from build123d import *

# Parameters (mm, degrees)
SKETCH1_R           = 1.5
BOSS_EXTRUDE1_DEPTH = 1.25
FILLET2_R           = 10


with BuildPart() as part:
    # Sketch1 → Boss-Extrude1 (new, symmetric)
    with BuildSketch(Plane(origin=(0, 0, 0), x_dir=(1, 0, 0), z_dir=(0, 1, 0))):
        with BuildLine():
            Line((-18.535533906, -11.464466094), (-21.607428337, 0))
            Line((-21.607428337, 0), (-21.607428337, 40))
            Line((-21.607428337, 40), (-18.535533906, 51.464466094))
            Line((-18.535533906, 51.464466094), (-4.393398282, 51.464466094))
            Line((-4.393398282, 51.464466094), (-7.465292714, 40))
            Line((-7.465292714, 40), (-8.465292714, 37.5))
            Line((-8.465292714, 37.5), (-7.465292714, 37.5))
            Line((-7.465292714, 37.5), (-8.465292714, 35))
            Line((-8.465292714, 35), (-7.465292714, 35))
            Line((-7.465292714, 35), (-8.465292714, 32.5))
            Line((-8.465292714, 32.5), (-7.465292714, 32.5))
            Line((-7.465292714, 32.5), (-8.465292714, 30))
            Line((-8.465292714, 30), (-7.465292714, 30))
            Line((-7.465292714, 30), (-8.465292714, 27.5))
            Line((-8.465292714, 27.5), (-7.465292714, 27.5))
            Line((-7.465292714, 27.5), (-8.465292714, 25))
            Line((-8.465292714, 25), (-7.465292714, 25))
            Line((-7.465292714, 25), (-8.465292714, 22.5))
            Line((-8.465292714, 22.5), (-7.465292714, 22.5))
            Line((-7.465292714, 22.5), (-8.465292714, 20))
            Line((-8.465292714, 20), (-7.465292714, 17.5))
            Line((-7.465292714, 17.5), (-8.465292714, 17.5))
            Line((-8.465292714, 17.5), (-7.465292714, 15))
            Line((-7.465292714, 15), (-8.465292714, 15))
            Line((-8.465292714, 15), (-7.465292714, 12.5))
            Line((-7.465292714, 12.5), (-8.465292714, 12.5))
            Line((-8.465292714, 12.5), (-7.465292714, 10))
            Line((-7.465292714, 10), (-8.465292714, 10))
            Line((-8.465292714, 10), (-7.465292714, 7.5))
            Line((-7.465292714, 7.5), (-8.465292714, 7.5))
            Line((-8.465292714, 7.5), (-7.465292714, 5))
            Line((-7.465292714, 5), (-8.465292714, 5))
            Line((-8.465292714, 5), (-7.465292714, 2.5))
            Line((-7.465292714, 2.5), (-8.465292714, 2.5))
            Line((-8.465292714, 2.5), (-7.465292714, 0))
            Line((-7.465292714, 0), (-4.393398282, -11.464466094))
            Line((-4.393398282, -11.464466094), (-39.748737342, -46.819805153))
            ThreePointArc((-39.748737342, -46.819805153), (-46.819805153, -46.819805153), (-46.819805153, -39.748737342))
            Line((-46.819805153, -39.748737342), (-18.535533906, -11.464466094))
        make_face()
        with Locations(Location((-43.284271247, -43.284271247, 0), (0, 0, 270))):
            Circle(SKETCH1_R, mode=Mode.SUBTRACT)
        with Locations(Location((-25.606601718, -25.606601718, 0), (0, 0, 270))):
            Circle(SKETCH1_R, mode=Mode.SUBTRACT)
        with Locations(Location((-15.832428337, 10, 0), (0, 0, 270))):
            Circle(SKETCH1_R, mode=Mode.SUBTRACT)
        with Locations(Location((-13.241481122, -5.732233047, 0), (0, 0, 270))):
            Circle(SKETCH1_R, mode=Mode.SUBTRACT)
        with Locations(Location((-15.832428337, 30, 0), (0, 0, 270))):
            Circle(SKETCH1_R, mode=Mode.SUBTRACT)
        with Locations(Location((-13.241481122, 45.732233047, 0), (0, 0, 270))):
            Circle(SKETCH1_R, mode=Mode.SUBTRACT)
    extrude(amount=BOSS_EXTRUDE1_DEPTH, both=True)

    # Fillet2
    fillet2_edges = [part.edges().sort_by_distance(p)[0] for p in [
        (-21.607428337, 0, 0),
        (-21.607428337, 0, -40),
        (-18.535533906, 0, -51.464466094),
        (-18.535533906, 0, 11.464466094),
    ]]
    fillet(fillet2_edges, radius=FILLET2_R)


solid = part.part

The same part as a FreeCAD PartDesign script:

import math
import FreeCAD as App
import Part
import Sketcher
Q = App.Units.Quantity


def edges_at(feature, points):
    """Names of the edges that pass closest to the given points."""
    edges = feature.Shape.Edges
    near = lambda p: min(range(len(edges)), key=lambda i: edges[i].distToShape(Part.Vertex(*p))[0])
    return sorted({f"Edge{near(p) + 1}" for p in points})

doc = App.newDocument("Part")
body = doc.addObject("PartDesign::Body", "Body")

sketch1 = body.newObject("Sketcher::SketchObject", "Sketch")
sketch1.AttachmentSupport = (doc.getObject("XZ_Plane"), [""])
sketch1.MapMode = "FlatFace"
sketch1.addGeometry(Part.LineSegment(App.Vector(-21.607428, 0, 0), App.Vector(-18.535534, 11.464466, 0)), False)
sketch1.addGeometry(Part.LineSegment(App.Vector(-18.535534, 11.464466, 0), App.Vector(-46.819805, 39.748737, 0)), False)
sketch1.addGeometry(Part.ArcOfCircle(Part.Circle(App.Vector(-43.284271, 43.284271, 0), App.Vector(0, 0, 1), 5), math.radians(45), math.radians(225)), False)
sketch1.addGeometry(Part.LineSegment(App.Vector(-39.748737, 46.819805, 0), App.Vector(-4.393398, 11.464466, 0)), False)
sketch1.addGeometry(Part.LineSegment(App.Vector(-4.393398, 11.464466, 0), App.Vector(-7.465293, 0, 0)), False)
sketch1.addGeometry(Part.LineSegment(App.Vector(-7.465293, 0, 0), App.Vector(-8.465293, -2.5, 0)), False)
sketch1.addGeometry(Part.LineSegment(App.Vector(-8.465293, -2.5, 0), App.Vector(-7.465293, -2.5, 0)), False)
sketch1.addGeometry(Part.LineSegment(App.Vector(-7.465293, -2.5, 0), App.Vector(-8.465293, -5, 0)), False)
sketch1.addGeometry(Part.LineSegment(App.Vector(-8.465293, -5, 0), App.Vector(-7.465293, -5, 0)), False)
sketch1.addGeometry(Part.LineSegment(App.Vector(-7.465293, -5, 0), App.Vector(-8.465293, -7.5, 0)), False)
sketch1.addGeometry(Part.LineSegment(App.Vector(-8.465293, -7.5, 0), App.Vector(-7.465293, -7.5, 0)), False)
sketch1.addGeometry(Part.LineSegment(App.Vector(-7.465293, -7.5, 0), App.Vector(-8.465293, -10, 0)), False)
sketch1.addGeometry(Part.LineSegment(App.Vector(-8.465293, -10, 0), App.Vector(-7.465293, -10, 0)), False)
sketch1.addGeometry(Part.LineSegment(App.Vector(-7.465293, -10, 0), App.Vector(-8.465293, -12.5, 0)), False)
sketch1.addGeometry(Part.LineSegment(App.Vector(-8.465293, -12.5, 0), App.Vector(-7.465293, -12.5, 0)), False)
sketch1.addGeometry(Part.LineSegment(App.Vector(-7.465293, -12.5, 0), App.Vector(-8.465293, -15, 0)), False)
sketch1.addGeometry(Part.LineSegment(App.Vector(-8.465293, -15, 0), App.Vector(-7.465293, -15, 0)), False)
sketch1.addGeometry(Part.LineSegment(App.Vector(-7.465293, -15, 0), App.Vector(-8.465293, -17.5, 0)), False)
sketch1.addGeometry(Part.LineSegment(App.Vector(-8.465293, -17.5, 0), App.Vector(-7.465293, -17.5, 0)), False)
sketch1.addGeometry(Part.LineSegment(App.Vector(-7.465293, -17.5, 0), App.Vector(-8.465293, -20, 0)), False)
sketch1.addGeometry(Part.LineSegment(App.Vector(-8.465293, -20, 0), App.Vector(-7.465293, -22.5, 0)), False)
sketch1.addGeometry(Part.LineSegment(App.Vector(-7.465293, -22.5, 0), App.Vector(-8.465293, -22.5, 0)), False)
sketch1.addGeometry(Part.LineSegment(App.Vector(-8.465293, -22.5, 0), App.Vector(-7.465293, -25, 0)), False)
sketch1.addGeometry(Part.LineSegment(App.Vector(-7.465293, -25, 0), App.Vector(-8.465293, -25, 0)), False)
sketch1.addGeometry(Part.LineSegment(App.Vector(-8.465293, -25, 0), App.Vector(-7.465293, -27.5, 0)), False)
sketch1.addGeometry(Part.LineSegment(App.Vector(-7.465293, -27.5, 0), App.Vector(-8.465293, -27.5, 0)), False)
sketch1.addGeometry(Part.LineSegment(App.Vector(-8.465293, -27.5, 0), App.Vector(-7.465293, -30, 0)), False)
sketch1.addGeometry(Part.LineSegment(App.Vector(-7.465293, -30, 0), App.Vector(-8.465293, -30, 0)), False)
sketch1.addGeometry(Part.LineSegment(App.Vector(-8.465293, -30, 0), App.Vector(-7.465293, -32.5, 0)), False)
sketch1.addGeometry(Part.LineSegment(App.Vector(-7.465293, -32.5, 0), App.Vector(-8.465293, -32.5, 0)), False)
sketch1.addGeometry(Part.LineSegment(App.Vector(-8.465293, -32.5, 0), App.Vector(-7.465293, -35, 0)), False)
sketch1.addGeometry(Part.LineSegment(App.Vector(-7.465293, -35, 0), App.Vector(-8.465293, -35, 0)), False)
sketch1.addGeometry(Part.LineSegment(App.Vector(-8.465293, -35, 0), App.Vector(-7.465293, -37.5, 0)), False)
sketch1.addGeometry(Part.LineSegment(App.Vector(-7.465293, -37.5, 0), App.Vector(-8.465293, -37.5, 0)), False)
sketch1.addGeometry(Part.LineSegment(App.Vector(-8.465293, -37.5, 0), App.Vector(-7.465293, -40, 0)), False)
sketch1.addGeometry(Part.LineSegment(App.Vector(-7.465293, -40, 0), App.Vector(-4.393398, -51.464466, 0)), False)
sketch1.addGeometry(Part.LineSegment(App.Vector(-4.393398, -51.464466, 0), App.Vector(-18.535534, -51.464466, 0)), False)
sketch1.addGeometry(Part.LineSegment(App.Vector(-18.535534, -51.464466, 0), App.Vector(-21.607428, -40, 0)), False)
sketch1.addGeometry(Part.LineSegment(App.Vector(-21.607428, -40, 0), App.Vector(-21.607428, 0, 0)), False)
sketch1.addGeometry(Part.Circle(App.Vector(-25.606602, 25.606602, 0), App.Vector(0, 0, 1), 1.5), False)
sketch1.addGeometry(Part.Circle(App.Vector(-13.241481, 5.732233, 0), App.Vector(0, 0, 1), 1.5), False)
sketch1.addGeometry(Part.Circle(App.Vector(-43.284271, 43.284271, 0), App.Vector(0, 0, 1), 1.5), False)
sketch1.addGeometry(Part.Circle(App.Vector(-15.832428, -10, 0), App.Vector(0, 0, 1), 1.5), False)
sketch1.addGeometry(Part.Circle(App.Vector(-15.832428, -30, 0), App.Vector(0, 0, 1), 1.5), False)
sketch1.addGeometry(Part.Circle(App.Vector(-13.241481, -45.732233, 0), App.Vector(0, 0, 1), 1.5), False)
sketch1.addConstraint(Sketcher.Constraint("Coincident", 0, 2, 1, 1))
sketch1.addConstraint(Sketcher.Constraint("Tangent", 1, 2, 2, 2))
sketch1.addConstraint(Sketcher.Constraint("Tangent", 2, 1, 3, 1))
sketch1.addConstraint(Sketcher.Constraint("Coincident", 3, 2, 4, 1))
sketch1.addConstraint(Sketcher.Constraint("Coincident", 4, 2, 5, 1))
sketch1.addConstraint(Sketcher.Constraint("Coincident", 5, 2, 6, 1))
sketch1.addConstraint(Sketcher.Constraint("Coincident", 6, 2, 7, 1))
sketch1.addConstraint(Sketcher.Constraint("Coincident", 7, 2, 8, 1))
sketch1.addConstraint(Sketcher.Constraint("Coincident", 8, 2, 9, 1))
sketch1.addConstraint(Sketcher.Constraint("Coincident", 9, 2, 10, 1))
sketch1.addConstraint(Sketcher.Constraint("Coincident", 10, 2, 11, 1))
sketch1.addConstraint(Sketcher.Constraint("Coincident", 11, 2, 12, 1))
sketch1.addConstraint(Sketcher.Constraint("Coincident", 12, 2, 13, 1))
sketch1.addConstraint(Sketcher.Constraint("Coincident", 13, 2, 14, 1))
sketch1.addConstraint(Sketcher.Constraint("Coincident", 14, 2, 15, 1))
sketch1.addConstraint(Sketcher.Constraint("Coincident", 15, 2, 16, 1))
sketch1.addConstraint(Sketcher.Constraint("Coincident", 16, 2, 17, 1))
sketch1.addConstraint(Sketcher.Constraint("Coincident", 17, 2, 18, 1))
sketch1.addConstraint(Sketcher.Constraint("Coincident", 18, 2, 19, 1))
sketch1.addConstraint(Sketcher.Constraint("Coincident", 19, 2, 20, 1))
sketch1.addConstraint(Sketcher.Constraint("Coincident", 20, 2, 21, 1))
sketch1.addConstraint(Sketcher.Constraint("Coincident", 21, 2, 22, 1))
sketch1.addConstraint(Sketcher.Constraint("Coincident", 22, 2, 23, 1))
sketch1.addConstraint(Sketcher.Constraint("Coincident", 23, 2, 24, 1))
sketch1.addConstraint(Sketcher.Constraint("Coincident", 24, 2, 25, 1))
sketch1.addConstraint(Sketcher.Constraint("Coincident", 25, 2, 26, 1))
sketch1.addConstraint(Sketcher.Constraint("Coincident", 26, 2, 27, 1))
sketch1.addConstraint(Sketcher.Constraint("Coincident", 27, 2, 28, 1))
sketch1.addConstraint(Sketcher.Constraint("Coincident", 28, 2, 29, 1))
sketch1.addConstraint(Sketcher.Constraint("Coincident", 29, 2, 30, 1))
sketch1.addConstraint(Sketcher.Constraint("Coincident", 30, 2, 31, 1))
sketch1.addConstraint(Sketcher.Constraint("Coincident", 31, 2, 32, 1))
sketch1.addConstraint(Sketcher.Constraint("Coincident", 32, 2, 33, 1))
sketch1.addConstraint(Sketcher.Constraint("Coincident", 33, 2, 34, 1))
sketch1.addConstraint(Sketcher.Constraint("Coincident", 34, 2, 35, 1))
sketch1.addConstraint(Sketcher.Constraint("Coincident", 35, 2, 36, 1))
sketch1.addConstraint(Sketcher.Constraint("Coincident", 36, 2, 37, 1))
sketch1.addConstraint(Sketcher.Constraint("Coincident", 37, 2, 38, 1))
sketch1.addConstraint(Sketcher.Constraint("Coincident", 38, 2, 0, 1))
sketch1.addConstraint(Sketcher.Constraint("Horizontal", 6))
sketch1.addConstraint(Sketcher.Constraint("Horizontal", 8))
sketch1.addConstraint(Sketcher.Constraint("Horizontal", 10))
sketch1.addConstraint(Sketcher.Constraint("Horizontal", 12))
sketch1.addConstraint(Sketcher.Constraint("Horizontal", 14))
sketch1.addConstraint(Sketcher.Constraint("Horizontal", 16))
sketch1.addConstraint(Sketcher.Constraint("Horizontal", 18))
sketch1.addConstraint(Sketcher.Constraint("Horizontal", 21))
sketch1.addConstraint(Sketcher.Constraint("Horizontal", 23))
sketch1.addConstraint(Sketcher.Constraint("Horizontal", 25))
sketch1.addConstraint(Sketcher.Constraint("Horizontal", 27))
sketch1.addConstraint(Sketcher.Constraint("Horizontal", 29))
sketch1.addConstraint(Sketcher.Constraint("Horizontal", 31))
sketch1.addConstraint(Sketcher.Constraint("Horizontal", 33))
sketch1.addConstraint(Sketcher.Constraint("Horizontal", 36))
sketch1.addConstraint(Sketcher.Constraint("Vertical", 38))
sketch1.addConstraint(Sketcher.Constraint("Coincident", 41, 3, 2, 3))
sketch1.addConstraint(Sketcher.Constraint("Equal", 39, 40))
sketch1.addConstraint(Sketcher.Constraint("Equal", 40, 41))
sketch1.addConstraint(Sketcher.Constraint("Equal", 41, 42))
sketch1.addConstraint(Sketcher.Constraint("Equal", 42, 43))
sketch1.addConstraint(Sketcher.Constraint("Equal", 43, 44))
sketch1.addConstraint(Sketcher.Constraint("PointOnObject", 4, 2, -1))
sketch1.addConstraint(Sketcher.Constraint("PointOnObject", 38, 2, -1))
sketch1.addConstraint(Sketcher.Constraint("Parallel", 1, 3))
sketch1.addConstraint(Sketcher.Constraint("Parallel", 0, 4))
sketch1.addConstraint(Sketcher.Constraint("Parallel", 5, 7))
sketch1.addConstraint(Sketcher.Constraint("Parallel", 7, 9))
sketch1.addConstraint(Sketcher.Constraint("Parallel", 9, 11))
sketch1.addConstraint(Sketcher.Constraint("Parallel", 11, 13))
sketch1.addConstraint(Sketcher.Constraint("Parallel", 13, 15))
sketch1.addConstraint(Sketcher.Constraint("Parallel", 15, 17))
sketch1.addConstraint(Sketcher.Constraint("Parallel", 17, 19))
sketch1.addConstraint(Sketcher.Constraint("Parallel", 20, 22))
sketch1.addConstraint(Sketcher.Constraint("Parallel", 22, 24))
sketch1.addConstraint(Sketcher.Constraint("Parallel", 24, 26))
sketch1.addConstraint(Sketcher.Constraint("Parallel", 26, 28))
sketch1.addConstraint(Sketcher.Constraint("Parallel", 28, 30))
sketch1.addConstraint(Sketcher.Constraint("Parallel", 30, 32))
sketch1.addConstraint(Sketcher.Constraint("Parallel", 32, 34))
sketch1.addConstraint(Sketcher.Constraint("Parallel", 35, 37))
sketch1.addConstraint(Sketcher.Constraint("Horizontal", 0, 2, 3, 2))
sketch1.addConstraint(Sketcher.Constraint("Horizontal", 42, 3, 11, 2))
sketch1.addConstraint(Sketcher.Constraint("Horizontal", 43, 3, 26, 2))
sketch1.addConstraint(Sketcher.Constraint("Horizontal", 34, 2, 37, 2))
sketch1.addConstraint(Sketcher.Constraint("Vertical", 42, 3, 43, 3))
sketch1.addConstraint(Sketcher.Constraint("Vertical", 40, 3, 44, 3))
sketch1.addConstraint(Sketcher.Constraint("Vertical", 4, 2, 6, 2))
sketch1.addConstraint(Sketcher.Constraint("Vertical", 5, 2, 7, 2))
sketch1.addConstraint(Sketcher.Constraint("Vertical", 6, 2, 8, 2))
sketch1.addConstraint(Sketcher.Constraint("Vertical", 7, 2, 9, 2))
sketch1.addConstraint(Sketcher.Constraint("Vertical", 8, 2, 10, 2))
sketch1.addConstraint(Sketcher.Constraint("Vertical", 9, 2, 11, 2))
sketch1.addConstraint(Sketcher.Constraint("Vertical", 10, 2, 12, 2))
sketch1.addConstraint(Sketcher.Constraint("Vertical", 11, 2, 13, 2))
sketch1.addConstraint(Sketcher.Constraint("Vertical", 12, 2, 14, 2))
sketch1.addConstraint(Sketcher.Constraint("Vertical", 13, 2, 15, 2))
sketch1.addConstraint(Sketcher.Constraint("Vertical", 14, 2, 16, 2))
sketch1.addConstraint(Sketcher.Constraint("Vertical", 15, 2, 17, 2))
sketch1.addConstraint(Sketcher.Constraint("Vertical", 16, 2, 18, 2))
sketch1.addConstraint(Sketcher.Constraint("Vertical", 17, 2, 19, 2))
sketch1.addConstraint(Sketcher.Constraint("Vertical", 18, 2, 20, 2))
sketch1.addConstraint(Sketcher.Constraint("Vertical", 19, 2, 21, 2))
sketch1.addConstraint(Sketcher.Constraint("Vertical", 20, 2, 22, 2))
sketch1.addConstraint(Sketcher.Constraint("Vertical", 21, 2, 23, 2))
sketch1.addConstraint(Sketcher.Constraint("Vertical", 22, 2, 24, 2))
sketch1.addConstraint(Sketcher.Constraint("Vertical", 23, 2, 25, 2))
sketch1.addConstraint(Sketcher.Constraint("Vertical", 24, 2, 26, 2))
sketch1.addConstraint(Sketcher.Constraint("Vertical", 25, 2, 27, 2))
sketch1.addConstraint(Sketcher.Constraint("Vertical", 26, 2, 28, 2))
sketch1.addConstraint(Sketcher.Constraint("Vertical", 27, 2, 29, 2))
sketch1.addConstraint(Sketcher.Constraint("Vertical", 28, 2, 30, 2))
sketch1.addConstraint(Sketcher.Constraint("Vertical", 29, 2, 31, 2))
sketch1.addConstraint(Sketcher.Constraint("Vertical", 30, 2, 32, 2))
sketch1.addConstraint(Sketcher.Constraint("Vertical", 31, 2, 33, 2))
sketch1.addConstraint(Sketcher.Constraint("Vertical", 32, 2, 34, 2))
sketch1.addConstraint(Sketcher.Constraint("Vertical", 3, 2, 35, 2))
sketch1.addConstraint(Sketcher.Constraint("Equal", 19, 20))
sketch1.addConstraint(Sketcher.Constraint("Equal", 4, 35))
sketch1.addConstraint(Sketcher.Constraint("Diameter", 39, 3.0))
sketch1.addConstraint(Sketcher.Constraint("Radius", 2, 5.0))
sketch1.addConstraint(Sketcher.Constraint("DistanceX", 6, 1, 6, 2, 1.0))
sketch1.addConstraint(Sketcher.Constraint("DistanceY", 38, 1, 38, 2, 40.0))
sketch1.addConstraint(Sketcher.Constraint("Angle", 0, Q("75 deg")))
sketch1.addConstraint(Sketcher.Constraint("Angle", 1, Q("135 deg")))
sketch1.addConstraint(Sketcher.Constraint("Distance", 1, 40.0))
sketch1.addConstraint(Sketcher.Constraint("DistanceX", 37, 2, 43, 3, 5.775))
sketch1.addConstraint(Sketcher.Constraint("DistanceX", 39, 3, -1, 1, 25.606602))
sketch1.addConstraint(Sketcher.Constraint("DistanceY", -1, 1, 39, 3, 25.606602))
sketch1.addConstraint(Sketcher.Constraint("DistanceX", 3, 2, -1, 1, 4.393398))
sketch1.addConstraint(Sketcher.Constraint("Distance", 0, 11.868889))
sketch1.addConstraint(Sketcher.Constraint("DistanceX", 40, 3, -1, 1, 13.241481))
sketch1.addConstraint(Sketcher.Constraint("DistanceY", 40, 3, 39, 3, 19.874369))
sketch1.addConstraint(Sketcher.Constraint("DistanceY", 44, 3, -1, 1, 45.732233))
pad1 = body.newObject("PartDesign::Pad", "Pad")
pad1.Profile = sketch1
pad1.Length = 2.5
pad1.Midplane = True
doc.recompute()

fillet = body.newObject("PartDesign::Fillet", "Fillet")
fillet.Base = (pad1, edges_at(pad1, [
    (-21.607, 0, 0),
    (-21.607, 0, -40),
    (-18.536, 0, -51.464),
    (-18.536, 0, 11.464),
]))
fillet.Radius = 10

doc.recompute()
